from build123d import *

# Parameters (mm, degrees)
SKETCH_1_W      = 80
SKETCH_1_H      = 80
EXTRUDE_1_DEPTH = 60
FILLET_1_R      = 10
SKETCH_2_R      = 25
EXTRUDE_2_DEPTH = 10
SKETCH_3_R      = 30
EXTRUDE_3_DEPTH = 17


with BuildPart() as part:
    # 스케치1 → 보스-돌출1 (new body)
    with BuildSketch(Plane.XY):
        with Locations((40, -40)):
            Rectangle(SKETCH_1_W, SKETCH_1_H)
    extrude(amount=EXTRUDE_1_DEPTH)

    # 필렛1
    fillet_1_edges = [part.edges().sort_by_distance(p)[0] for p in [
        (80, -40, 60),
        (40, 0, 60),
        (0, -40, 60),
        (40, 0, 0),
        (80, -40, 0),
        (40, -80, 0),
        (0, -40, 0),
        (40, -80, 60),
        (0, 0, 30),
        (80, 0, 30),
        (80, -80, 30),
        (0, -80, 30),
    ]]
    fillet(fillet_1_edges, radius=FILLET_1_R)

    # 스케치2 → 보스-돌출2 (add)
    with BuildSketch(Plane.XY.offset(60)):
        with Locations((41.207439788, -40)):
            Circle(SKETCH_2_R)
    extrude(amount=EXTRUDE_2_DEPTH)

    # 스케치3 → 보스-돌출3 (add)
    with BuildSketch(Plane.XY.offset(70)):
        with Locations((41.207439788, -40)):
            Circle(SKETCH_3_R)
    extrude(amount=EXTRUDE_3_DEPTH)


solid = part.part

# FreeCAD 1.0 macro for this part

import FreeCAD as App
import Part
import Sketcher
from FreeCAD import Vector

doc = App.newDocument("Part")
params = doc.addObject("Spreadsheet::Sheet", "Params")
for row, (alias, value) in enumerate([
    ("sketch1_width", "80 mm"),
    ("pad1_length", "60 mm"),
    ("fillet_radius", "10 mm"),
    ("sketch2_diameter", "50 mm"),
    ("pad2_length", "10 mm"),
    ("sketch3_diameter", "60 mm"),
    ("pad3_length", "17 mm"),
], start=1):
    params.set(f"A{row}", alias)
    params.set(f"B{row}", "=" + value)
    params.setAlias(f"B{row}", alias)

body = doc.addObject("PartDesign::Body", "Body")

sketch1 = doc.addObject("Sketcher::SketchObject", "Sketch")
body.addObject(sketch1)
sketch1.AttachmentSupport = (doc.XY_Plane, [""])
sketch1.MapMode = "FlatFace"
sketch1.addGeometry([
    Part.LineSegment(Vector(0, 0, 0), Vector(0, -80, 0)),
    Part.LineSegment(Vector(0, -80, 0), Vector(80, -80, 0)),
    Part.LineSegment(Vector(80, -80, 0), Vector(80, 0, 0)),
    Part.LineSegment(Vector(80, 0, 0), Vector(0, 0, 0)),
], False)
sketch1.addConstraint([
    Sketcher.Constraint("Coincident", 0, 2, 1, 1),
    Sketcher.Constraint("Coincident", 1, 2, 2, 1),
    Sketcher.Constraint("Coincident", 2, 2, 3, 1),
    Sketcher.Constraint("Coincident", 3, 2, 0, 1),
    Sketcher.Constraint("Vertical", 0),
    Sketcher.Constraint("Horizontal", 1),
    Sketcher.Constraint("Vertical", 2),
    Sketcher.Constraint("Horizontal", 3),
    Sketcher.Constraint("Coincident", 3, 2, -1, 1),
    Sketcher.Constraint("Equal", 3, 0),
    Sketcher.Constraint("DistanceX", 1, 1, 1, 2, 80.0),
])
sketch1.setExpression("Constraints[10]", "Params.sketch1_width")
pad1 = doc.addObject("PartDesign::Pad", "Pad")
body.addObject(pad1)
pad1.Profile = sketch1
pad1.setExpression("Length", "Params.pad1_length")
doc.recompute()

fillet = doc.addObject("PartDesign::Fillet", "Fillet")
body.addObject(fillet)
fillet.Base = (pad1, ["Edge1"])
fillet.UseAllEdges = True
fillet.setExpression("Radius", "Params.fillet_radius")

sketch2 = doc.addObject("Sketcher::SketchObject", "Sketch001")
body.addObject(sketch2)
sketch2.AttachmentSupport = (doc.XY_Plane, [""])
sketch2.MapMode = "FlatFace"
sketch2.AttachmentOffset = App.Placement(Vector(0, 0, 60), App.Rotation())
sketch2.addGeometry(Part.Circle(Vector(41.20744, -40, 0), Vector(0, 0, 1), 25), False)
sketch2.addConstraint([
    Sketcher.Constraint("Diameter", 0, 50.0),
    Sketcher.Constraint("DistanceY", 0, 3, -1, 1, 40.0),
    Sketcher.Constraint("DistanceX", -1, 1, 0, 3, 41.20744),
])
sketch2.setExpression("Constraints[0]", "Params.sketch2_diameter")
pad2 = doc.addObject("PartDesign::Pad", "Pad001")
body.addObject(pad2)
pad2.Profile = sketch2
pad2.setExpression("Length", "Params.pad2_length")

sketch3 = doc.addObject("Sketcher::SketchObject", "Sketch002")
body.addObject(sketch3)
sketch3.AttachmentSupport = (doc.XY_Plane, [""])
sketch3.MapMode = "FlatFace"
sketch3.AttachmentOffset = App.Placement(Vector(0, 0, 70), App.Rotation())
sketch3.addGeometry(Part.Circle(Vector(41.20744, -40, 0), Vector(0, 0, 1), 30), False)
sketch3.addConstraint([
    Sketcher.Constraint("Diameter", 0, 60.0),
    Sketcher.Constraint("DistanceY", 0, 3, -1, 1, 40.0),
    Sketcher.Constraint("DistanceX", -1, 1, 0, 3, 41.20744),
])
sketch3.setExpression("Constraints[0]", "Params.sketch3_diameter")
pad3 = doc.addObject("PartDesign::Pad", "Pad002")
body.addObject(pad3)
pad3.Profile = sketch3
pad3.setExpression("Length", "Params.pad3_length")

doc.recompute()
